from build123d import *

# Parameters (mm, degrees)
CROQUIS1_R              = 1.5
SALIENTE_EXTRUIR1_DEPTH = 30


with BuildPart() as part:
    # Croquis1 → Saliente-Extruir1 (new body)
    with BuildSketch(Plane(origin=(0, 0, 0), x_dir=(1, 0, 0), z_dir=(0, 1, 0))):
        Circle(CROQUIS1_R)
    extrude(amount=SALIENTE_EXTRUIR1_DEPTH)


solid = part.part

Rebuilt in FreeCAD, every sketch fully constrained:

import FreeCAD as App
import Part
import Sketcher
from FreeCAD import Vector

doc = App.newDocument("Part")
body = doc.addObject("PartDesign::Body", "Body")

# Sketch on XZ plane
sketch1 = body.newObject("Sketcher::SketchObject", "Sketch")
sketch1.AttachmentSupport = (doc.getObject("XZ_Plane"), [""])
sketch1.MapMode = "FlatFace"
sketch1.addGeometry(Part.Circle(Vector(0, 0, 0), Vector(0, 0, 1), 1.5), False)
sketch1.addConstraint(Sketcher.Constraint("Coincident", 0, 3, -1, 1))
sketch1.addConstraint(Sketcher.Constraint("Diameter", 0, 3.0))
pad1 = body.newObject("PartDesign::Pad", "Pad")
pad1.Profile = sketch1
pad1.Length = 30
pad1.Reversed = True

doc.recompute()
